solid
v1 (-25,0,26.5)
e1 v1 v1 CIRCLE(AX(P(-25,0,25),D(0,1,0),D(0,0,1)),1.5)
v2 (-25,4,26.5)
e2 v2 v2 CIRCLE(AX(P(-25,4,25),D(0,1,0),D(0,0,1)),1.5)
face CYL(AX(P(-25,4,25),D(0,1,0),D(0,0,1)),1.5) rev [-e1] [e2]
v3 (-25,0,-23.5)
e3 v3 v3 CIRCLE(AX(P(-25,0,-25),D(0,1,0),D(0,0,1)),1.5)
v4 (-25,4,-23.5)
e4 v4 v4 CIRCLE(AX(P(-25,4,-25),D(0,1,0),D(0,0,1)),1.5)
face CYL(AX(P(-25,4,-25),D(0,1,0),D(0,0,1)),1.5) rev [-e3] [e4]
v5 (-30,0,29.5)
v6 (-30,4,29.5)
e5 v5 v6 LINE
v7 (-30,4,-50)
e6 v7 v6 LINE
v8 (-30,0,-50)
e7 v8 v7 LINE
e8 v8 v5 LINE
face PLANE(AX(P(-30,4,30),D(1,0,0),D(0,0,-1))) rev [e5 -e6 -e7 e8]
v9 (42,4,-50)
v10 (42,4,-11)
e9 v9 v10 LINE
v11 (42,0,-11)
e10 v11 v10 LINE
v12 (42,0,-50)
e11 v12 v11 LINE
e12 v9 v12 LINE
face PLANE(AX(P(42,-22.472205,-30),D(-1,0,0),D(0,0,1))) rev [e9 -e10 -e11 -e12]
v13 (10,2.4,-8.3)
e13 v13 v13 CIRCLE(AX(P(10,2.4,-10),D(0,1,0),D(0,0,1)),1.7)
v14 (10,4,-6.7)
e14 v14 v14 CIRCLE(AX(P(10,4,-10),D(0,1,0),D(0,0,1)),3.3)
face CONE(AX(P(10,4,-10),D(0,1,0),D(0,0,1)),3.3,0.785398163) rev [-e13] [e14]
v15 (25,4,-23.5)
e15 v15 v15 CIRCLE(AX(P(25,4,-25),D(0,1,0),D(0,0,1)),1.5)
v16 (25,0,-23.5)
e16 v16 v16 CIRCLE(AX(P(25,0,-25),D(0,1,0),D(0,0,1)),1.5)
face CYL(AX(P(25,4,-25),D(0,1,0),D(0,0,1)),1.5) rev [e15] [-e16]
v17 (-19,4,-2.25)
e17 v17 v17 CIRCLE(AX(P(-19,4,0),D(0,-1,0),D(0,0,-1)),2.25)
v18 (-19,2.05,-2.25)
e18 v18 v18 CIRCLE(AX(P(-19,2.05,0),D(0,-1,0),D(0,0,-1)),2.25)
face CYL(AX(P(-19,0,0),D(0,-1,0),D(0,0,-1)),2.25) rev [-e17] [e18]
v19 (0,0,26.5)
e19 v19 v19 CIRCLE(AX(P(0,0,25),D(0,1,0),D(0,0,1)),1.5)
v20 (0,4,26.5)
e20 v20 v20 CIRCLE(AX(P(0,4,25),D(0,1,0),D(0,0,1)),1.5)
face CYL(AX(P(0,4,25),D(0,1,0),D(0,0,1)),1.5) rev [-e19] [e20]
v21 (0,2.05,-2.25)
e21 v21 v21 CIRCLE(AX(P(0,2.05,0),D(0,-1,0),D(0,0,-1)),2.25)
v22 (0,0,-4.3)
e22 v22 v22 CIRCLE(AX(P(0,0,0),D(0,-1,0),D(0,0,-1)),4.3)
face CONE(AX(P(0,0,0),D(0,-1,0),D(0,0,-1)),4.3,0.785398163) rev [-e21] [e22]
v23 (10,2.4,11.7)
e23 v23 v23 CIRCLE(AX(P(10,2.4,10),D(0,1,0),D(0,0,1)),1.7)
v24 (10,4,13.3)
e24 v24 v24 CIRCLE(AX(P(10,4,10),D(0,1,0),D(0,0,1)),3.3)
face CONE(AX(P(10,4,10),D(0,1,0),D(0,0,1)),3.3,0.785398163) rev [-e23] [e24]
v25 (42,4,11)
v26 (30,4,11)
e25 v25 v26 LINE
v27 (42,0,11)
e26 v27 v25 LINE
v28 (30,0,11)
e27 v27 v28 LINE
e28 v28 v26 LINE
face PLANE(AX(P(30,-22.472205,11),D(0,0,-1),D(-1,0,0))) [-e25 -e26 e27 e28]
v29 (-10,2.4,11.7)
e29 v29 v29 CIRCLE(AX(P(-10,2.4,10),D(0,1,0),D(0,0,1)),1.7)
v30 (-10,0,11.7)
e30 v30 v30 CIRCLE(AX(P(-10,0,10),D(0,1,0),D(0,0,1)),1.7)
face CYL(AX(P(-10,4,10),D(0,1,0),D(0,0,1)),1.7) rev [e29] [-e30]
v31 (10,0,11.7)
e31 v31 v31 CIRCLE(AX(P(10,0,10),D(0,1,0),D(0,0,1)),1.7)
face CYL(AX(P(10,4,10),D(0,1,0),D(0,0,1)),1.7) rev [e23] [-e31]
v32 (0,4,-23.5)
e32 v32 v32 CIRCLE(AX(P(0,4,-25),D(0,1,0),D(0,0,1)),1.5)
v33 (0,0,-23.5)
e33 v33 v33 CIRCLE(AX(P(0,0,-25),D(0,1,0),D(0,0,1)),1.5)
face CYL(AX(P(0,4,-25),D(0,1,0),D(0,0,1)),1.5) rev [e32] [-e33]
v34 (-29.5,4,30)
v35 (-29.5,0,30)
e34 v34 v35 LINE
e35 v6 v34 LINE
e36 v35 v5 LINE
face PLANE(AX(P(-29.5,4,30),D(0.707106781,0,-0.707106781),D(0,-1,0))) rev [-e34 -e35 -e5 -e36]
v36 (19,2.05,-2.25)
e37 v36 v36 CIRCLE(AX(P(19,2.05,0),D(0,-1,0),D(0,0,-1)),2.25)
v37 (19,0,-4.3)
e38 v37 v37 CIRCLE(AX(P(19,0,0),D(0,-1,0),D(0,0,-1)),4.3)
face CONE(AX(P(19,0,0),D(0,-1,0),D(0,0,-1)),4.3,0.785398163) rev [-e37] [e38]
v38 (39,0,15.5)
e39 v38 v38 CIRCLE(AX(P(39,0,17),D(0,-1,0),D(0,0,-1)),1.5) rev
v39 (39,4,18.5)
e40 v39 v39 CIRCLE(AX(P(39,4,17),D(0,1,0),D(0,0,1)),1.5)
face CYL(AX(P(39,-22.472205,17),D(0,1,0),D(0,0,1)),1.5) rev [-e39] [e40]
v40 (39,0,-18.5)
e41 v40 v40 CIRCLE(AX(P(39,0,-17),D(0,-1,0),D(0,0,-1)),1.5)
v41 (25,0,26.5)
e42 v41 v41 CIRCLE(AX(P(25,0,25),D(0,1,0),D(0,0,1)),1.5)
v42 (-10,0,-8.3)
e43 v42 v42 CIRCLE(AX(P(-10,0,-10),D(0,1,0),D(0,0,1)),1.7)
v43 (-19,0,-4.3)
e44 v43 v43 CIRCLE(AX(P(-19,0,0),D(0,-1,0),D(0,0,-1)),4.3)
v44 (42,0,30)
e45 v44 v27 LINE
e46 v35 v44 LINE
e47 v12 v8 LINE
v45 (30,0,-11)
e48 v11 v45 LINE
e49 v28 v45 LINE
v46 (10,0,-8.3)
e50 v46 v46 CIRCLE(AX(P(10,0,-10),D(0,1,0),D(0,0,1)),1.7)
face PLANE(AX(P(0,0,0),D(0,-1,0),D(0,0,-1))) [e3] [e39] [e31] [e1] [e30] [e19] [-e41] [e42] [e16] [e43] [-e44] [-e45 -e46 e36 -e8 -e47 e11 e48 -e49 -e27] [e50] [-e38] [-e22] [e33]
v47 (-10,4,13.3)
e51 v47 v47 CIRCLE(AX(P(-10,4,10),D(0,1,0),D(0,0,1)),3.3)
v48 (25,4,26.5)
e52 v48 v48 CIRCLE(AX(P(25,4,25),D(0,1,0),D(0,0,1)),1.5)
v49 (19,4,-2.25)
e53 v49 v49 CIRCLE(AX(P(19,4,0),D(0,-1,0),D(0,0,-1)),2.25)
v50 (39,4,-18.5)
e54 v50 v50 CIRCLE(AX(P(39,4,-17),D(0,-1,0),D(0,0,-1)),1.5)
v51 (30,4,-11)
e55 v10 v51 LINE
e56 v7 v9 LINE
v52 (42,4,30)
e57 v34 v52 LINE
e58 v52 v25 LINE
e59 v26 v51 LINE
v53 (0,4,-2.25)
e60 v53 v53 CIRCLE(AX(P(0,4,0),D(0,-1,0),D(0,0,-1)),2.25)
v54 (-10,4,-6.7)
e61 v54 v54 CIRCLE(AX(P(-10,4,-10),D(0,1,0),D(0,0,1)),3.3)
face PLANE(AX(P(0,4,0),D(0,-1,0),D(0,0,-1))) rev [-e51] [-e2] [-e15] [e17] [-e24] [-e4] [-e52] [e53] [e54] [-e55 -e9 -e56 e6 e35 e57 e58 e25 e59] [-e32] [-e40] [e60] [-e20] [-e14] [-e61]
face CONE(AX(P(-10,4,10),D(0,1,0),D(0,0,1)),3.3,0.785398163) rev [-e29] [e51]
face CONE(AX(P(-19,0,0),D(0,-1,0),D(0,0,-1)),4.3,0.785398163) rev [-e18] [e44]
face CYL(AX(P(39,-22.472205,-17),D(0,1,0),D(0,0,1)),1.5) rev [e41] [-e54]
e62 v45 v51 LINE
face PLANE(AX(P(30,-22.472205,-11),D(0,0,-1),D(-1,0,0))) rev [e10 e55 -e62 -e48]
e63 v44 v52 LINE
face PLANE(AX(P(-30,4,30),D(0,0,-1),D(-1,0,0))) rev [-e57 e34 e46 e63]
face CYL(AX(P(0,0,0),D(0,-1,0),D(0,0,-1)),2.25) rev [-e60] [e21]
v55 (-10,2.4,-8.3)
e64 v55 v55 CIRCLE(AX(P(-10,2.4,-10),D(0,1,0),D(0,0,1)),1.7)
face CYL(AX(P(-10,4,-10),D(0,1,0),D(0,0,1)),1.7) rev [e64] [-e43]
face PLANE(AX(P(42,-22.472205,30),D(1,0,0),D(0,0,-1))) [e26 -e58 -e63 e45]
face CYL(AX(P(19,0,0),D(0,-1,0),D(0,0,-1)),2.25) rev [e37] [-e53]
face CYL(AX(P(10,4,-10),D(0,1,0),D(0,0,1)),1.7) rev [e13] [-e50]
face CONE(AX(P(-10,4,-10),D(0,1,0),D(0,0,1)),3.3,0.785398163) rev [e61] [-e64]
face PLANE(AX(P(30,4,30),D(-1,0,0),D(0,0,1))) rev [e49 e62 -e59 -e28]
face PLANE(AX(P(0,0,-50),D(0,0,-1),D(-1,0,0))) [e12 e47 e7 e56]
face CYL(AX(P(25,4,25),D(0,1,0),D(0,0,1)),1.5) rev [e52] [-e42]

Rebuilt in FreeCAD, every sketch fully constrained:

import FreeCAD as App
import Part
import Sketcher

V = App.Vector
Q = App.Units.Quantity


def edges_at(feature, points):
    """Names of the edges that pass closest to the given points."""
    edges = feature.Shape.Edges
    near = lambda p: min(range(len(edges)), key=lambda i: edges[i].distToShape(Part.Vertex(*p))[0])
    return sorted({f"Edge{near(p) + 1}" for p in points})

doc = App.newDocument("Part")
body = doc.addObject("PartDesign::Body", "Body")

sketch1 = doc.addObject("Sketcher::SketchObject", "Sketch")
body.addObject(sketch1)
sketch1.AttachmentSupport = (doc.XZ_Plane, [""])
sketch1.MapMode = "FlatFace"
sketch1.addGeometry(Part.LineSegment(V(-30, -30, 0), V(-30, 30, 0)), False)
sketch1.addGeometry(Part.LineSegment(V(-30, 30, 0), V(30, 30, 0)), False)
sketch1.addGeometry(Part.LineSegment(V(30, 30, 0), V(30, -30, 0)), False)
sketch1.addGeometry(Part.LineSegment(V(30, -30, 0), V(-30, -30, 0)), False)
sketch1.addConstraint(Sketcher.Constraint("Coincident", 0, 2, 1, 1))
sketch1.addConstraint(Sketcher.Constraint("Coincident", 1, 2, 2, 1))
sketch1.addConstraint(Sketcher.Constraint("Coincident", 2, 2, 3, 1))
sketch1.addConstraint(Sketcher.Constraint("Coincident", 3, 2, 0, 1))
sketch1.addConstraint(Sketcher.Constraint("Vertical", 0))
sketch1.addConstraint(Sketcher.Constraint("Horizontal", 1))
sketch1.addConstraint(Sketcher.Constraint("Vertical", 2))
sketch1.addConstraint(Sketcher.Constraint("Horizontal", 3))
sketch1.addConstraint(Sketcher.Constraint("Symmetric", 0, 2, 2, 2, -1, 1))
sketch1.addConstraint(Sketcher.Constraint("Equal", 3, 0))
sketch1.addConstraint(Sketcher.Constraint("DistanceX", 1, 1, 1, 2, Q("60 mm")))
pad1 = doc.addObject("PartDesign::Pad", "Pad")
body.addObject(pad1)
pad1.Profile = sketch1
pad1.Length = 4
pad1.Reversed = True

sketch2 = doc.addObject("Sketcher::SketchObject", "Sketch001")
body.addObject(sketch2)
sketch2.AttachmentSupport = (doc.XZ_Plane, [""])
sketch2.MapMode = "FlatFace"
sketch2.AttachmentOffset = App.Placement(V(0, 0, -4), App.Rotation())
sketch2.addGeometry(Part.Circle(V(-10, -10, 0), V(0, 0, 1), 1.7), False)
sketch2.addGeometry(Part.Circle(V(10, -10, 0), V(0, 0, 1), 1.7), False)
sketch2.addGeometry(Part.Circle(V(10, 10, 0), V(0, 0, 1), 1.7), False)
sketch2.addGeometry(Part.Circle(V(-10, 10, 0), V(0, 0, 1), 1.7), False)
sketch2.addConstraint(Sketcher.Constraint("Equal", 0, 1))
sketch2.addConstraint(Sketcher.Constraint("Equal", 1, 2))
sketch2.addConstraint(Sketcher.Constraint("Equal", 2, 3))
sketch2.addConstraint(Sketcher.Constraint("Symmetric", 0, 3, 2, 3, -1, 1))
sketch2.addConstraint(Sketcher.Constraint("Symmetric", 1, 3, 3, 3, -1, 1))
sketch2.addConstraint(Sketcher.Constraint("Symmetric", 0, 3, 1, 3, -2))
sketch2.addConstraint(Sketcher.Constraint("Diameter", 0, Q("3.4 mm")))
sketch2.addConstraint(Sketcher.Constraint("DistanceX", 0, 3, -1, 1, Q("10 mm")))
sketch2.addConstraint(Sketcher.Constraint("DistanceY", 0, 3, -1, 1, Q("10 mm")))
doc.recompute()
hole = doc.addObject("PartDesign::Hole", "Hole")
body.addObject(hole)
hole.Profile = sketch2
hole.ThreadType = "None"
hole.Diameter = 3.4
hole.DepthType = "ThroughAll"
hole.HoleCutType = "Countersink"
hole.HoleCutDiameter = 6.6
hole.HoleCutCountersinkAngle = 90
hole.Reversed = True

sketch3 = doc.addObject("Sketcher::SketchObject", "Sketch002")
body.addObject(sketch3)
sketch3.AttachmentSupport = (doc.YZ_Plane, [""])
sketch3.MapMode = "FlatFace"
sketch3.AttachmentOffset = App.Placement(V(0, 0, -19), App.Rotation())
sketch3.addGeometry(Part.LineSegment(V(4, 0, 0), V(0, 0, 0)), False)
sketch3.addGeometry(Part.LineSegment(V(0, 0, 0), V(0, -4.3, 0)), False)
sketch3.addGeometry(Part.LineSegment(V(0, -4.3, 0), V(2, -2.2, 0)), False)
sketch3.addGeometry(Part.LineSegment(V(2, -2.2, 0), V(4, -2.2, 0)), False)
sketch3.addGeometry(Part.LineSegment(V(4, -2.2, 0), V(4, 0, 0)), False)
sketch3.addConstraint(Sketcher.Constraint("Coincident", 0, 2, 1, 1))
sketch3.addConstraint(Sketcher.Constraint("Coincident", 1, 2, 2, 1))
sketch3.addConstraint(Sketcher.Constraint("Coincident", 2, 2, 3, 1))
sketch3.addConstraint(Sketcher.Constraint("Coincident", 3, 2, 4, 1))
sketch3.addConstraint(Sketcher.Constraint("Coincident", 4, 2, 0, 1))
sketch3.addConstraint(Sketcher.Constraint("Horizontal", 0))
sketch3.addConstraint(Sketcher.Constraint("Vertical", 1))
sketch3.addConstraint(Sketcher.Constraint("Horizontal", 3))
sketch3.addConstraint(Sketcher.Constraint("Vertical", 4))
sketch3.addConstraint(Sketcher.Constraint("Coincident", 0, 2, -1, 1))
sketch3.addConstraint(Sketcher.Constraint("DistanceX", 0, 2, 0, 1, Q("4 mm")))
sketch3.addConstraint(Sketcher.Constraint("Angle", 2, Q("45 deg")))
sketch3.addConstraint(Sketcher.Constraint("DistanceY", 1, 2, 1, 1, Q("4.3 mm")))
sketch3.addConstraint(Sketcher.Constraint("DistanceX", 3, 1, 3, 2, Q("1.95 mm")))
groove = doc.addObject("PartDesign::Groove", "Groove")
body.addObject(groove)
groove.Profile = sketch3
groove.ReferenceAxis = (sketch3, ["H_Axis"])
groove.Angle = 360
doc.recompute()

linearpattern = doc.addObject("PartDesign::LinearPattern", "LinearPattern")
body.addObject(linearpattern)
linearpattern.Originals = [groove]
linearpattern.Direction = (doc.X_Axis, [""])
linearpattern.Mode = "offset"
linearpattern.Offset = 19
linearpattern.Occurrences = 2
body.Tip = linearpattern
doc.recompute()

linearpattern2 = doc.addObject("PartDesign::LinearPattern", "LinearPattern001")
body.addObject(linearpattern2)
linearpattern2.Originals = [groove]
linearpattern2.Direction = (doc.X_Axis, [""])
linearpattern2.Mode = "offset"
linearpattern2.Offset = 38
linearpattern2.Occurrences = 2
body.Tip = linearpattern2

sketch4 = doc.addObject("Sketcher::SketchObject", "Sketch003")
body.addObject(sketch4)
sketch4.AttachmentSupport = (doc.XZ_Plane, [""])
sketch4.MapMode = "FlatFace"
sketch4.AttachmentOffset = App.Placement(V(0, 0, -4), App.Rotation())
sketch4.addGeometry(Part.Circle(V(25, -25, 0), V(0, 0, 1), 1.5), False)
sketch4.addGeometry(Part.Circle(V(25, 25, 0), V(0, 0, 1), 1.5), False)
sketch4.addGeometry(Part.Circle(V(0, 25, 0), V(0, 0, 1), 1.5), False)
sketch4.addGeometry(Part.Circle(V(-25, 25, 0), V(0, 0, 1), 1.5), False)
sketch4.addGeometry(Part.Circle(V(-25, -25, 0), V(0, 0, 1), 1.5), False)
sketch4.addGeometry(Part.Circle(V(0, -25, 0), V(0, 0, 1), 1.5), False)
sketch4.addConstraint(Sketcher.Constraint("Equal", 0, 1))
sketch4.addConstraint(Sketcher.Constraint("Equal", 1, 2))
sketch4.addConstraint(Sketcher.Constraint("Equal", 2, 3))
sketch4.addConstraint(Sketcher.Constraint("Equal", 3, 4))
sketch4.addConstraint(Sketcher.Constraint("Equal", 4, 5))
sketch4.addConstraint(Sketcher.Constraint("Symmetric", 0, 3, 3, 3, -1, 1))
sketch4.addConstraint(Sketcher.Constraint("Symmetric", 1, 3, 4, 3, -1, 1))
sketch4.addConstraint(Sketcher.Constraint("Symmetric", 2, 3, 5, 3, -1, 1))
sketch4.addConstraint(Sketcher.Constraint("Symmetric", 1, 3, 3, 3, -2))
sketch4.addConstraint(Sketcher.Constraint("PointOnObject", 2, 3, -2))
sketch4.addConstraint(Sketcher.Constraint("Horizontal", 1, 3, 2, 3))
sketch4.addConstraint(Sketcher.Constraint("Diameter", 0, Q("3 mm")))
sketch4.addConstraint(Sketcher.Constraint("DistanceX", -1, 1, 0, 3, Q("25 mm")))
sketch4.addConstraint(Sketcher.Constraint("DistanceY", 0, 3, -1, 1, Q("25 mm")))
doc.recompute()
hole2 = doc.addObject("PartDesign::Hole", "Hole001")
body.addObject(hole2)
hole2.Profile = sketch4
hole2.ThreadType = "None"
hole2.Diameter = 3
hole2.DepthType = "ThroughAll"
hole2.Reversed = True

sketch5 = doc.addObject("Sketcher::SketchObject", "Sketch004")
body.addObject(sketch5)
sketch5.AttachmentSupport = (doc.XZ_Plane, [""])
sketch5.MapMode = "FlatFace"
sketch5.AttachmentOffset = App.Placement(V(0, 0, -4), App.Rotation())
sketch5.addGeometry(Part.LineSegment(V(30, 11, 0), V(30, 30, 0)), False)
sketch5.addGeometry(Part.LineSegment(V(30, 30, 0), V(42, 30, 0)), False)
sketch5.addGeometry(Part.LineSegment(V(42, 30, 0), V(42, 11, 0)), False)
sketch5.addGeometry(Part.LineSegment(V(42, 11, 0), V(30, 11, 0)), False)
sketch5.addGeometry(Part.Circle(V(39, 17, 0), V(0, 0, 1), 1.5), False)
sketch5.addConstraint(Sketcher.Constraint("Coincident", 0, 2, 1, 1))
sketch5.addConstraint(Sketcher.Constraint("Coincident", 1, 2, 2, 1))
sketch5.addConstraint(Sketcher.Constraint("Coincident", 2, 2, 3, 1))
sketch5.addConstraint(Sketcher.Constraint("Coincident", 3, 2, 0, 1))
sketch5.addConstraint(Sketcher.Constraint("Vertical", 0))
sketch5.addConstraint(Sketcher.Constraint("Horizontal", 1))
sketch5.addConstraint(Sketcher.Constraint("Vertical", 2))
sketch5.addConstraint(Sketcher.Constraint("Horizontal", 3))
sketch5.addConstraint(Sketcher.Constraint("Diameter", 4, Q("3 mm")))
sketch5.addConstraint(Sketcher.Constraint("DistanceX", 1, 1, 1, 2, Q("12 mm")))
sketch5.addConstraint(Sketcher.Constraint("DistanceY", 0, 1, 0, 2, Q("19 mm")))
sketch5.addConstraint(Sketcher.Constraint("DistanceX", -1, 1, 4, 3, Q("39 mm")))
sketch5.addConstraint(Sketcher.Constraint("DistanceY", -1, 1, 4, 3, Q("17 mm")))
sketch5.addConstraint(Sketcher.Constraint("DistanceX", -1, 1, 0, 2, Q("30 mm")))
sketch5.addConstraint(Sketcher.Constraint("DistanceY", -1, 1, 0, 2, Q("30 mm")))
pad2 = doc.addObject("PartDesign::Pad", "Pad001")
body.addObject(pad2)
pad2.Profile = sketch5
pad2.Length = 4
doc.recompute()

chamfer = doc.addObject("PartDesign::Chamfer", "Chamfer")
body.addObject(chamfer)
chamfer.Base = (pad2, edges_at(pad2, [(-30, 2, 30)]))
chamfer.Size = 0.5
doc.recompute()

mirrored = doc.addObject("PartDesign::Mirrored", "Mirrored")
body.addObject(mirrored)
mirrored.Originals = [pad2]
mirrored.MirrorPlane = (doc.XY_Plane, [""])
body.Tip = mirrored

sketch6 = doc.addObject("Sketcher::SketchObject", "Sketch005")
body.addObject(sketch6)
sketch6.AttachmentSupport = (doc.XY_Plane, [""])
sketch6.MapMode = "FlatFace"
sketch6.AttachmentOffset = App.Placement(V(0, 0, -30), App.Rotation())
sketch6.addGeometry(Part.LineSegment(V(42, 4, 0), V(42, 0, 0)), False)
sketch6.addGeometry(Part.LineSegment(V(42, 0, 0), V(-30, 0, 0)), False)
sketch6.addGeometry(Part.LineSegment(V(-30, 0, 0), V(-30, 4, 0)), False)
sketch6.addGeometry(Part.LineSegment(V(-30, 4, 0), V(42, 4, 0)), False)
sketch6.addConstraint(Sketcher.Constraint("Coincident", 0, 2, 1, 1))
sketch6.addConstraint(Sketcher.Constraint("Coincident", 1, 2, 2, 1))
sketch6.addConstraint(Sketcher.Constraint("Coincident", 2, 2, 3, 1))
sketch6.addConstraint(Sketcher.Constraint("Coincident", 3, 2, 0, 1))
sketch6.addConstraint(Sketcher.Constraint("Vertical", 0))
sketch6.addConstraint(Sketcher.Constraint("Horizontal", 1))
sketch6.addConstraint(Sketcher.Constraint("Vertical", 2))
sketch6.addConstraint(Sketcher.Constraint("Horizontal", 3))
sketch6.addConstraint(Sketcher.Constraint("PointOnObject", 0, 2, -1))
sketch6.addConstraint(Sketcher.Constraint("DistanceX", 1, 2, 1, 1, Q("72 mm")))
sketch6.addConstraint(Sketcher.Constraint("DistanceY", 0, 2, 0, 1, Q("4 mm")))
sketch6.addConstraint(Sketcher.Constraint("DistanceX", -1, 1, 0, 2, Q("42 mm")))
pad3 = doc.addObject("PartDesign::Pad", "Pad002")
body.addObject(pad3)
pad3.Profile = sketch6
pad3.Length = 20
pad3.Reversed = True

doc.recompute()
